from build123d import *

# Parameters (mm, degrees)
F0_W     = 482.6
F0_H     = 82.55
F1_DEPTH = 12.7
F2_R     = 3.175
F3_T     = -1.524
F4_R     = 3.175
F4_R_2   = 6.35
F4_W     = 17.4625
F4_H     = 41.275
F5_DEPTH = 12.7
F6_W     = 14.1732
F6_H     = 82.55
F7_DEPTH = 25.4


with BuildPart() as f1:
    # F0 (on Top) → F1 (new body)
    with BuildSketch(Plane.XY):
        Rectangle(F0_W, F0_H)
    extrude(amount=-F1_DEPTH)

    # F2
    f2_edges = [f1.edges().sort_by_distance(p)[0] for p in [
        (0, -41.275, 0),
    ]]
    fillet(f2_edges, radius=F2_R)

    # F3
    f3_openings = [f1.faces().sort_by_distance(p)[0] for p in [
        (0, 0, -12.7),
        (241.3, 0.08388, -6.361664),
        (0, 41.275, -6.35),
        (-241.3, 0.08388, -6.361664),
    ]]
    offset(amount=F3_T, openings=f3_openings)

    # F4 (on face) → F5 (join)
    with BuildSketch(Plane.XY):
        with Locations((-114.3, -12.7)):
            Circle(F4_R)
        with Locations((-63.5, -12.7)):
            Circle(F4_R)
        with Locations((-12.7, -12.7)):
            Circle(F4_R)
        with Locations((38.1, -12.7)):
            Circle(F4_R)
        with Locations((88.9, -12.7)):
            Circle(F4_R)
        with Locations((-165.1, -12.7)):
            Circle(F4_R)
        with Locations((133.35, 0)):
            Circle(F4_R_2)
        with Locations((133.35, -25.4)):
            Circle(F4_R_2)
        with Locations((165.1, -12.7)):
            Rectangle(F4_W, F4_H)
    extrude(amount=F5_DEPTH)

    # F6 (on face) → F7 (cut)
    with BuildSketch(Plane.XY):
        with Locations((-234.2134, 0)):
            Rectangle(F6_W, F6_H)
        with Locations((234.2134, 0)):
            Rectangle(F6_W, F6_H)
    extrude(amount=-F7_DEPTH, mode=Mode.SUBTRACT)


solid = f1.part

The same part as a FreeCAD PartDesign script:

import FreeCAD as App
import Part
import Sketcher
Q = App.Units.Quantity


def edges_at(feature, points):
    """Names of the edges that pass closest to the given points."""
    edges = feature.Shape.Edges
    near = lambda p: min(range(len(edges)), key=lambda i: edges[i].distToShape(Part.Vertex(*p))[0])
    return sorted({f"Edge{near(p) + 1}" for p in points})


def faces_at(feature, points):
    """Names of the faces that lie closest to the given points."""
    faces = feature.Shape.Faces
    near = lambda p: min(range(len(faces)), key=lambda i: faces[i].distToShape(Part.Vertex(*p))[0])
    return sorted({f"Face{near(p) + 1}" for p in points})


def add_polygon(sketch, points):
    """Adds a closed chain of lines whose ends are joined by coincident constraints."""
    first, n = sketch.GeometryCount, len(points)
    for a, b in zip(points, points[1:] + points[:1]):
        sketch.addGeometry(Part.LineSegment(App.Vector(*a, 0), App.Vector(*b, 0)), False)
    for i in range(n):
        sketch.addConstraint(Sketcher.Constraint("Coincident", first + i, 2, first + (i + 1) % n, 1))

doc = App.newDocument("Part")
body = doc.addObject("PartDesign::Body", "Body")

# Sketch on XY plane
sketch1 = body.newObject("Sketcher::SketchObject", "Sketch")
sketch1.AttachmentSupport = (doc.getObject("XY_Plane"), [""])
sketch1.MapMode = "FlatFace"
add_polygon(sketch1, [(-241.3, 41.275), (-241.3, -41.275), (241.3, -41.275), (241.3, 41.275)])  # lines 0-3
sketch1.addConstraint([
    Sketcher.Constraint("Vertical", 0),
    Sketcher.Constraint("Horizontal", 1),
    Sketcher.Constraint("Vertical", 2),
    Sketcher.Constraint("Horizontal", 3),
    Sketcher.Constraint("Symmetric", 0, 2, 2, 2, -1, 1),
    Sketcher.Constraint("DistanceX", 1, 1, 1, 2, Q("19 in")),
    Sketcher.Constraint("DistanceY", 0, 2, 0, 1, Q("3.25 in")),
])
pad1 = body.newObject("PartDesign::Pad", "Pad")
pad1.Profile = sketch1
pad1.Length = Q("0.5 in")
pad1.Reversed = True
doc.recompute()

fillet = body.newObject("PartDesign::Fillet", "Fillet")
fillet.Base = (pad1, edges_at(pad1, [(0, -41.275, 0)]))
fillet.Radius = Q("0.125 in")
doc.recompute()

thickness = body.newObject("PartDesign::Thickness", "Thickness")
thickness.Base = (fillet, faces_at(fillet, [
    (0, 0, -12.7),
    (241.3, 0, -6.35),
    (0, 41.275, -6.35),
    (-241.3, 0, -6.35),
]))
thickness.Value = Q("0.06 in")
thickness.Reversed = True
thickness.Join = "Arc"

# Sketch on XY plane
sketch2 = body.newObject("Sketcher::SketchObject", "Sketch001")
sketch2.AttachmentSupport = (doc.getObject("XY_Plane"), [""])
sketch2.MapMode = "FlatFace"
sketch2.addGeometry(Part.Circle(App.Vector(-114.3, -12.7, 0), App.Vector(0, 0, 1), 3.175), False)  # 0
sketch2.addGeometry(Part.Circle(App.Vector(-63.5, -12.7, 0), App.Vector(0, 0, 1), 3.175), False)  # 1
sketch2.addGeometry(Part.Circle(App.Vector(-12.7, -12.7, 0), App.Vector(0, 0, 1), 3.175), False)  # 2
sketch2.addGeometry(Part.Circle(App.Vector(38.1, -12.7, 0), App.Vector(0, 0, 1), 3.175), False)  # 3
sketch2.addGeometry(Part.Circle(App.Vector(88.9, -12.7, 0), App.Vector(0, 0, 1), 3.175), False)  # 4
sketch2.addGeometry(Part.Circle(App.Vector(-165.1, -12.7, 0), App.Vector(0, 0, 1), 3.175), False)  # 5
sketch2.addGeometry(Part.Circle(App.Vector(133.35, 0, 0), App.Vector(0, 0, 1), 6.35), False)  # 6
sketch2.addGeometry(Part.Circle(App.Vector(133.35, -25.4, 0), App.Vector(0, 0, 1), 6.35), False)  # 7
add_polygon(sketch2, [(156.36875, 7.9375), (156.36875, -33.3375), (173.83125, -33.3375), (173.83125, 7.9375)])  # lines 8-11
sketch2.addConstraint([
    Sketcher.Constraint("Vertical", 8),
    Sketcher.Constraint("Horizontal", 9),
    Sketcher.Constraint("Vertical", 10),
    Sketcher.Constraint("Horizontal", 11),
    Sketcher.Constraint("Equal", 0, 1),
    Sketcher.Constraint("Equal", 1, 2),
    Sketcher.Constraint("Equal", 2, 3),
    Sketcher.Constraint("Equal", 3, 4),
    Sketcher.Constraint("Equal", 4, 5),
    Sketcher.Constraint("Equal", 6, 7),
    Sketcher.Constraint("PointOnObject", 6, 3, -1),
    Sketcher.Constraint("Horizontal", 0, 3, 1, 3),
    Sketcher.Constraint("Horizontal", 1, 3, 2, 3),
    Sketcher.Constraint("Horizontal", 2, 3, 3, 3),
    Sketcher.Constraint("Horizontal", 3, 3, 4, 3),
    Sketcher.Constraint("Horizontal", 4, 3, 5, 3),
    Sketcher.Constraint("Vertical", 6, 3, 7, 3),
    Sketcher.Constraint("Diameter", 6, Q("0.5 in")),
    Sketcher.Constraint("Diameter", 0, Q("0.25 in")),
    Sketcher.Constraint("DistanceY", 7, 3, -1, 1, Q("1 in")),
    Sketcher.Constraint("DistanceX", 0, 3, 1, 3, Q("2 in")),
    Sketcher.Constraint("DistanceX", 1, 3, 2, 3, Q("2 in")),
    Sketcher.Constraint("DistanceX", 2, 3, 3, 3, Q("2 in")),
    Sketcher.Constraint("DistanceX", 3, 3, 4, 3, Q("2 in")),
    Sketcher.Constraint("DistanceX", 5, 3, 0, 3, Q("2 in")),
    Sketcher.Constraint("DistanceX", 0, 3, -1, 1, Q("4.5 in")),
    Sketcher.Constraint("DistanceY", 0, 3, -1, 1, Q("0.5 in")),
    Sketcher.Constraint("DistanceX", 9, 1, 9, 2, Q("0.6875 in")),
    Sketcher.Constraint("DistanceY", 8, 2, 8, 1, Q("1.625 in")),
    Sketcher.Constraint("DistanceX", -1, 1, 6, 3, Q("5.25 in")),
    Sketcher.Constraint("DistanceX", -1, 1, 8, 2, Q("6.15625 in")),
    Sketcher.Constraint("DistanceY", 8, 2, -1, 1, Q("1.3125 in")),
])
pad2 = body.newObject("PartDesign::Pad", "Pad001")
pad2.Profile = sketch2
pad2.Length = Q("0.5 in")

# Sketch on XY plane
sketch3 = body.newObject("Sketcher::SketchObject", "Sketch002")
sketch3.AttachmentSupport = (doc.getObject("XY_Plane"), [""])
sketch3.MapMode = "FlatFace"
add_polygon(sketch3, [(-241.3, 41.275), (-241.3, -41.275), (-227.1268, -41.275), (-227.1268, 41.275)])  # lines 0-3
add_polygon(sketch3, [(227.1268, 41.275), (227.1268, -41.275), (241.3, -41.275), (241.3, 41.275)])  # lines 4-7
sketch3.addConstraint([
    Sketcher.Constraint("Vertical", 0),
    Sketcher.Constraint("Horizontal", 1),
    Sketcher.Constraint("Vertical", 2),
    Sketcher.Constraint("Horizontal", 3),
    Sketcher.Constraint("Vertical", 4),
    Sketcher.Constraint("Horizontal", 5),
    Sketcher.Constraint("Vertical", 6),
    Sketcher.Constraint("Horizontal", 7),
    Sketcher.Constraint("Symmetric", 2, 2, 4, 2, -1, 1),
    Sketcher.Constraint("Symmetric", 0, 2, 6, 2, -1, 1),
    Sketcher.Constraint("Horizontal", 1, 2, 4, 2),
    Sketcher.Constraint("DistanceX", 0, 2, 5, 2, Q("19 in")),
    Sketcher.Constraint("DistanceY", 0, 2, 0, 1, Q("3.25 in")),
    Sketcher.Constraint("DistanceX", 1, 1, 1, 2, Q("0.558 in")),
])
pocket1 = body.newObject("PartDesign::Pocket", "Pocket")
pocket1.Profile = sketch3
pocket1.Length = Q("1 in")

doc.recompute()
